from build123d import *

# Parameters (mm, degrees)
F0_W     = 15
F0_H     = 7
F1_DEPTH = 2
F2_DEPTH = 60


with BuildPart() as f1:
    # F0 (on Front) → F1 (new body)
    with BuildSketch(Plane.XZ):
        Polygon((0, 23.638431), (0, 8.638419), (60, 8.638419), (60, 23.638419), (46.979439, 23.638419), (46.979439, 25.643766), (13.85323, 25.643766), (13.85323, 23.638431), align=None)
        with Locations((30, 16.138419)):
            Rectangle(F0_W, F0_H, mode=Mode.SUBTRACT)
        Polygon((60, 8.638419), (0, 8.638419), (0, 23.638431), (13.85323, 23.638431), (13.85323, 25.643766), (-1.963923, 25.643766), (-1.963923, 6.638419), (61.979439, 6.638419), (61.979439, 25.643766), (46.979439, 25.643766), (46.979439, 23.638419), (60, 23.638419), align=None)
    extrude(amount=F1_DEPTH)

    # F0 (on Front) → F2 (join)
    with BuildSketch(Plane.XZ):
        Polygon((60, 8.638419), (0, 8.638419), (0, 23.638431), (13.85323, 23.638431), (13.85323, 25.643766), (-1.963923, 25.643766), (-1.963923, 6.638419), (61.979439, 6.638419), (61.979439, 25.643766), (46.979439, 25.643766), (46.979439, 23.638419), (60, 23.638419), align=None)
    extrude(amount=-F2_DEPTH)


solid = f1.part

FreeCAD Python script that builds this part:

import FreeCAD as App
import Part
import Sketcher

V = App.Vector

doc = App.newDocument("Part")
params = doc.addObject("Spreadsheet::Sheet", "Params")
for row, (alias, value) in enumerate([
    ("sketch1_width", "15 mm"),
    ("sketch1_height", "7 mm"),
    ("pad1_length", "2 mm"),
    ("sketch2_width", "60 mm"),
    ("sketch2_width2", "15 mm"),
    ("pad2_length", "60 mm"),
], start=1):
    params.set(f"A{row}", alias)
    params.set(f"B{row}", "=" + value)
    params.setAlias(f"B{row}", alias)

body = doc.addObject("PartDesign::Body", "Body")

# Sketch on XZ plane
sketch1 = body.newObject("Sketcher::SketchObject", "Sketch")
sketch1.AttachmentSupport = (doc.getObject("XZ_Plane"), [""])
sketch1.MapMode = "FlatFace"
sketch1.addGeometry([
    Part.LineSegment(V(-2, 26, 0), V(-2, 7, 0)),  # 0
    Part.LineSegment(V(-2, 7, 0), V(62, 7, 0)),  # 1
    Part.LineSegment(V(62, 7, 0), V(62, 26, 0)),  # 2
    Part.LineSegment(V(62, 26, 0), V(-2, 26, 0)),  # 3
    Part.LineSegment(V(38, 13, 0), V(22, 13, 0)),  # 4
    Part.LineSegment(V(22, 13, 0), V(22, 20, 0)),  # 5
    Part.LineSegment(V(22, 20, 0), V(38, 20, 0)),  # 6
    Part.LineSegment(V(38, 20, 0), V(38, 13, 0)),  # 7
], False)
sketch1.addConstraint([
    Sketcher.Constraint("Coincident", 0, 2, 1, 1),
    Sketcher.Constraint("Coincident", 1, 2, 2, 1),
    Sketcher.Constraint("Coincident", 2, 2, 3, 1),
    Sketcher.Constraint("Coincident", 3, 2, 0, 1),
    Sketcher.Constraint("Coincident", 4, 2, 5, 1),
    Sketcher.Constraint("Coincident", 5, 2, 6, 1),
    Sketcher.Constraint("Coincident", 6, 2, 7, 1),
    Sketcher.Constraint("Coincident", 7, 2, 4, 1),
    Sketcher.Constraint("Vertical", 0),
    Sketcher.Constraint("Horizontal", 1),
    Sketcher.Constraint("Vertical", 2),
    Sketcher.Constraint("Horizontal", 3),
    Sketcher.Constraint("Horizontal", 4),
    Sketcher.Constraint("Vertical", 5),
    Sketcher.Constraint("Horizontal", 6),
    Sketcher.Constraint("Vertical", 7),
    Sketcher.Constraint("DistanceX", 4, 2, 4, 1, 15.0),
    Sketcher.Constraint("DistanceY", 5, 1, 5, 2, 7.0),
    Sketcher.Constraint("DistanceY", 0, 2, 4, 2, 6.0),
    Sketcher.Constraint("DistanceX", -1, 1, 4, 2, 22.5),
    Sketcher.Constraint("DistanceX", 1, 1, 1, 2, 63.943362),
    Sketcher.Constraint("DistanceY", 0, 2, 0, 1, 19.005347),
    Sketcher.Constraint("DistanceY", -1, 1, 0, 2, 6.638419),
    Sketcher.Constraint("DistanceX", -1, 1, 1, 2, 61.979439),
])
sketch1.setExpression("Constraints[16]", "Params.sketch1_width")
sketch1.setExpression("Constraints[17]", "Params.sketch1_height")
pad1 = body.newObject("PartDesign::Pad", "Pad")
pad1.Profile = sketch1
pad1.setExpression("Length", "Params.pad1_length")

# Sketch on XZ plane
sketch2 = body.newObject("Sketcher::SketchObject", "Sketch001")
sketch2.AttachmentSupport = (doc.getObject("XZ_Plane"), [""])
sketch2.MapMode = "FlatFace"
sketch2.addGeometry([
    Part.LineSegment(V(60, 8.6, 0), V(0, 8.6, 0)),  # 0
    Part.LineSegment(V(0, 8.6, 0), V(0, 23.6, 0)),  # 1
    Part.LineSegment(V(0, 23.6, 0), V(13.9, 23.6, 0)),  # 2
    Part.LineSegment(V(13.9, 23.6, 0), V(13.9, 25.6, 0)),  # 3
    Part.LineSegment(V(13.9, 25.6, 0), V(-2, 25.6, 0)),  # 4
    Part.LineSegment(V(-2, 25.6, 0), V(-2, 6.6, 0)),  # 5
    Part.LineSegment(V(-2, 6.6, 0), V(62, 6.6, 0)),  # 6
    Part.LineSegment(V(62, 6.6, 0), V(62, 25.6, 0)),  # 7
    Part.LineSegment(V(62, 25.6, 0), V(47, 25.6, 0)),  # 8
    Part.LineSegment(V(47, 25.6, 0), V(47, 23.6, 0)),  # 9
    Part.LineSegment(V(47, 23.6, 0), V(60, 23.6, 0)),  # 10
    Part.LineSegment(V(60, 23.6, 0), V(60, 8.6, 0)),  # 11
], False)
sketch2.addConstraint([
    Sketcher.Constraint("Coincident", 0, 2, 1, 1),
    Sketcher.Constraint("Coincident", 1, 2, 2, 1),
    Sketcher.Constraint("Coincident", 2, 2, 3, 1),
    Sketcher.Constraint("Coincident", 3, 2, 4, 1),
    Sketcher.Constraint("Coincident", 4, 2, 5, 1),
    Sketcher.Constraint("Coincident", 5, 2, 6, 1),
    Sketcher.Constraint("Coincident", 6, 2, 7, 1),
    Sketcher.Constraint("Coincident", 7, 2, 8, 1),
    Sketcher.Constraint("Coincident", 8, 2, 9, 1),
    Sketcher.Constraint("Coincident", 9, 2, 10, 1),
    Sketcher.Constraint("Coincident", 10, 2, 11, 1),
    Sketcher.Constraint("Coincident", 11, 2, 0, 1),
    Sketcher.Constraint("Horizontal", 0),
    Sketcher.Constraint("Vertical", 1),
    Sketcher.Constraint("Horizontal", 2),
    Sketcher.Constraint("Vertical", 3),
    Sketcher.Constraint("Horizontal", 4),
    Sketcher.Constraint("Vertical", 5),
    Sketcher.Constraint("Horizontal", 6),
    Sketcher.Constraint("Vertical", 7),
    Sketcher.Constraint("Horizontal", 8),
    Sketcher.Constraint("Vertical", 9),
    Sketcher.Constraint("Horizontal", 10),
    Sketcher.Constraint("Vertical", 11),
    Sketcher.Constraint("PointOnObject", 0, 2, -2),
    Sketcher.Constraint("Horizontal", 4, 2, 7, 2),
    Sketcher.Constraint("Equal", 8, 11),
    Sketcher.Constraint("DistanceX", 0, 2, 0, 1, 60.0),
    Sketcher.Constraint("DistanceX", 8, 2, 8, 1, 15.0),
    Sketcher.Constraint("DistanceY", 5, 2, 0, 2, 2.0),
    Sketcher.Constraint("DistanceX", 2, 1, 2, 2, 13.85323),
    Sketcher.Constraint("DistanceX", 10, 1, 10, 2, 13.020561),
    Sketcher.Constraint("DistanceX", 4, 2, 4, 1, 15.817153),
    Sketcher.Constraint("DistanceY", 1, 1, 1, 2, 15.000012),
    Sketcher.Constraint("DistanceY", 3, 1, 3, 2, 2.005335),
    Sketcher.Constraint("DistanceY", -1, 1, 0, 2, 8.638419),
])
sketch2.setExpression("Constraints[27]", "Params.sketch2_width")
sketch2.setExpression("Constraints[28]", "Params.sketch2_width2")
pad2 = body.newObject("PartDesign::Pad", "Pad001")
pad2.Profile = sketch2
pad2.setExpression("Length", "Params.pad2_length")
pad2.Reversed = True

doc.recompute()
